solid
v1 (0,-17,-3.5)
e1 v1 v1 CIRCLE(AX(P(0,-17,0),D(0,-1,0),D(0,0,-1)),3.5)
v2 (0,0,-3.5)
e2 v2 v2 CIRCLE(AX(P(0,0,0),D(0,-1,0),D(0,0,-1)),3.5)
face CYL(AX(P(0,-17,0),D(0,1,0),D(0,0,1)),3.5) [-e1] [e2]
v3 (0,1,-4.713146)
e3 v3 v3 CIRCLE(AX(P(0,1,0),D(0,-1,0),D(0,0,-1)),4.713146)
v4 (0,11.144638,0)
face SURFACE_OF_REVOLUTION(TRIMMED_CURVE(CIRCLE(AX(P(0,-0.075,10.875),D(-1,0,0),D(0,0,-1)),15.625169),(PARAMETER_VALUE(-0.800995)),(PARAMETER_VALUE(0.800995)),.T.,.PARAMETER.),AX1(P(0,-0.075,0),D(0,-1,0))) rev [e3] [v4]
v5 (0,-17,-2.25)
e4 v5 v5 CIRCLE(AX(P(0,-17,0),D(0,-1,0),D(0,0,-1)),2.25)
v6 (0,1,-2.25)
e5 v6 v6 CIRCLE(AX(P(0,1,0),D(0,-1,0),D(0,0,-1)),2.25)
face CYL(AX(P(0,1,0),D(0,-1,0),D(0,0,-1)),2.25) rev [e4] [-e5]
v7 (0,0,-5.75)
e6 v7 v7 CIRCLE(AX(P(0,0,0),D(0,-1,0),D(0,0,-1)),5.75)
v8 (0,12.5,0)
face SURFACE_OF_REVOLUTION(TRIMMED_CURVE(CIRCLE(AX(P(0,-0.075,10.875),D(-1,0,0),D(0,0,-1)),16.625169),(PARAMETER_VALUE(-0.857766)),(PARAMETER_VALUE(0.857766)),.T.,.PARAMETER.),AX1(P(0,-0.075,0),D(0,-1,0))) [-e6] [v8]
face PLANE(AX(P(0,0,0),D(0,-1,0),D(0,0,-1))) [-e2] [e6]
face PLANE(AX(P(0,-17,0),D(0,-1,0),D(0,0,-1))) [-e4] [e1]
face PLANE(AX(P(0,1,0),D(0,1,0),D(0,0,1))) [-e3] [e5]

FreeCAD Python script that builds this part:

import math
import FreeCAD as App
import Part
import Sketcher
from FreeCAD import Vector

doc = App.newDocument("Part")
body = doc.addObject("PartDesign::Body", "Body")

sketch1 = body.newObject("Sketcher::SketchObject", "Sketch")
sketch1.AttachmentSupport = (doc.getObject("XY_Plane"), [""])
sketch1.MapMode = "FlatFace"
sketch1.addGeometry([
    Part.LineSegment(Vector(0, 1, 0), Vector(0, 0, 0)),
    Part.LineSegment(Vector(0, 0, 0), Vector(5.75, 0, 0)),
    Part.ArcOfCircle(Part.Circle(Vector(-10.875, -0.075, 0), Vector(0, 0, 1), 16.625169), math.radians(0.258475), math.radians(49.146385)),
    Part.LineSegment(Vector(0, 12.5, 0), Vector(0, 11.144638, 0)),
    Part.ArcOfCircle(Part.Circle(Vector(-10.875, -0.075, 0), Vector(0, 0, 1), 15.625169), math.radians(3.945023), math.radians(45.893643)),
    Part.LineSegment(Vector(4.713146, 1, 0), Vector(0, 1, 0)),
], False)
sketch1.addConstraint([
    Sketcher.Constraint("Coincident", 0, 2, 1, 1),
    Sketcher.Constraint("Coincident", 1, 2, 2, 1),
    Sketcher.Constraint("Coincident", 2, 2, 3, 1),
    Sketcher.Constraint("Coincident", 3, 2, 4, 2),
    Sketcher.Constraint("Coincident", 4, 1, 5, 1),
    Sketcher.Constraint("Coincident", 5, 2, 0, 1),
    Sketcher.Constraint("Vertical", 0),
    Sketcher.Constraint("Horizontal", 1),
    Sketcher.Constraint("Vertical", 3),
    Sketcher.Constraint("Horizontal", 5),
    Sketcher.Constraint("Coincident", 0, 2, -1, 1),
    Sketcher.Constraint("Coincident", 4, 3, 2, 3),
    Sketcher.Constraint("PointOnObject", 2, 2, -2),
    Sketcher.Constraint("DistanceY", 0, 2, 0, 1, 1.0),
    Sketcher.Constraint("DistanceX", 1, 1, 1, 2, 5.75),
    Sketcher.Constraint("DistanceY", -1, 1, 2, 2, 12.5),
    Sketcher.Constraint("Radius", 2, 16.625169),
    Sketcher.Constraint("Radius", 4, 15.625169),
])
revolution = body.newObject("PartDesign::Revolution", "Revolution")
revolution.Profile = sketch1
revolution.ReferenceAxis = (sketch1, ["V_Axis"])
revolution.Angle = 360

sketch2 = body.newObject("Sketcher::SketchObject", "Sketch001")
sketch2.AttachmentSupport = (doc.getObject("XZ_Plane"), [""])
sketch2.MapMode = "FlatFace"
sketch2.addGeometry(Part.Circle(Vector(0, 0, 0), Vector(0, 0, 1), 3.5), False)
sketch2.addConstraint([
    Sketcher.Constraint("Coincident", 0, 3, -1, 1),
    Sketcher.Constraint("Diameter", 0, 7.0),
])
pad1 = body.newObject("PartDesign::Pad", "Pad")
pad1.Profile = sketch2
pad1.Length = 17

sketch3 = body.newObject("Sketcher::SketchObject", "Sketch002")
sketch3.AttachmentSupport = (doc.getObject("XZ_Plane"), [""])
sketch3.MapMode = "FlatFace"
sketch3.AttachmentOffset = App.Placement(Vector(0, 0, 17), App.Rotation())
sketch3.addGeometry(Part.Circle(Vector(0, 0, 0), Vector(0, 0, 1), 2.25), False)
sketch3.addConstraint([
    Sketcher.Constraint("Coincident", 0, 3, -1, 1),
    Sketcher.Constraint("Diameter", 0, 4.5),
])
pocket1 = body.newObject("PartDesign::Pocket", "Pocket")
pocket1.Profile = sketch3
pocket1.Length = 18

doc.recompute()
